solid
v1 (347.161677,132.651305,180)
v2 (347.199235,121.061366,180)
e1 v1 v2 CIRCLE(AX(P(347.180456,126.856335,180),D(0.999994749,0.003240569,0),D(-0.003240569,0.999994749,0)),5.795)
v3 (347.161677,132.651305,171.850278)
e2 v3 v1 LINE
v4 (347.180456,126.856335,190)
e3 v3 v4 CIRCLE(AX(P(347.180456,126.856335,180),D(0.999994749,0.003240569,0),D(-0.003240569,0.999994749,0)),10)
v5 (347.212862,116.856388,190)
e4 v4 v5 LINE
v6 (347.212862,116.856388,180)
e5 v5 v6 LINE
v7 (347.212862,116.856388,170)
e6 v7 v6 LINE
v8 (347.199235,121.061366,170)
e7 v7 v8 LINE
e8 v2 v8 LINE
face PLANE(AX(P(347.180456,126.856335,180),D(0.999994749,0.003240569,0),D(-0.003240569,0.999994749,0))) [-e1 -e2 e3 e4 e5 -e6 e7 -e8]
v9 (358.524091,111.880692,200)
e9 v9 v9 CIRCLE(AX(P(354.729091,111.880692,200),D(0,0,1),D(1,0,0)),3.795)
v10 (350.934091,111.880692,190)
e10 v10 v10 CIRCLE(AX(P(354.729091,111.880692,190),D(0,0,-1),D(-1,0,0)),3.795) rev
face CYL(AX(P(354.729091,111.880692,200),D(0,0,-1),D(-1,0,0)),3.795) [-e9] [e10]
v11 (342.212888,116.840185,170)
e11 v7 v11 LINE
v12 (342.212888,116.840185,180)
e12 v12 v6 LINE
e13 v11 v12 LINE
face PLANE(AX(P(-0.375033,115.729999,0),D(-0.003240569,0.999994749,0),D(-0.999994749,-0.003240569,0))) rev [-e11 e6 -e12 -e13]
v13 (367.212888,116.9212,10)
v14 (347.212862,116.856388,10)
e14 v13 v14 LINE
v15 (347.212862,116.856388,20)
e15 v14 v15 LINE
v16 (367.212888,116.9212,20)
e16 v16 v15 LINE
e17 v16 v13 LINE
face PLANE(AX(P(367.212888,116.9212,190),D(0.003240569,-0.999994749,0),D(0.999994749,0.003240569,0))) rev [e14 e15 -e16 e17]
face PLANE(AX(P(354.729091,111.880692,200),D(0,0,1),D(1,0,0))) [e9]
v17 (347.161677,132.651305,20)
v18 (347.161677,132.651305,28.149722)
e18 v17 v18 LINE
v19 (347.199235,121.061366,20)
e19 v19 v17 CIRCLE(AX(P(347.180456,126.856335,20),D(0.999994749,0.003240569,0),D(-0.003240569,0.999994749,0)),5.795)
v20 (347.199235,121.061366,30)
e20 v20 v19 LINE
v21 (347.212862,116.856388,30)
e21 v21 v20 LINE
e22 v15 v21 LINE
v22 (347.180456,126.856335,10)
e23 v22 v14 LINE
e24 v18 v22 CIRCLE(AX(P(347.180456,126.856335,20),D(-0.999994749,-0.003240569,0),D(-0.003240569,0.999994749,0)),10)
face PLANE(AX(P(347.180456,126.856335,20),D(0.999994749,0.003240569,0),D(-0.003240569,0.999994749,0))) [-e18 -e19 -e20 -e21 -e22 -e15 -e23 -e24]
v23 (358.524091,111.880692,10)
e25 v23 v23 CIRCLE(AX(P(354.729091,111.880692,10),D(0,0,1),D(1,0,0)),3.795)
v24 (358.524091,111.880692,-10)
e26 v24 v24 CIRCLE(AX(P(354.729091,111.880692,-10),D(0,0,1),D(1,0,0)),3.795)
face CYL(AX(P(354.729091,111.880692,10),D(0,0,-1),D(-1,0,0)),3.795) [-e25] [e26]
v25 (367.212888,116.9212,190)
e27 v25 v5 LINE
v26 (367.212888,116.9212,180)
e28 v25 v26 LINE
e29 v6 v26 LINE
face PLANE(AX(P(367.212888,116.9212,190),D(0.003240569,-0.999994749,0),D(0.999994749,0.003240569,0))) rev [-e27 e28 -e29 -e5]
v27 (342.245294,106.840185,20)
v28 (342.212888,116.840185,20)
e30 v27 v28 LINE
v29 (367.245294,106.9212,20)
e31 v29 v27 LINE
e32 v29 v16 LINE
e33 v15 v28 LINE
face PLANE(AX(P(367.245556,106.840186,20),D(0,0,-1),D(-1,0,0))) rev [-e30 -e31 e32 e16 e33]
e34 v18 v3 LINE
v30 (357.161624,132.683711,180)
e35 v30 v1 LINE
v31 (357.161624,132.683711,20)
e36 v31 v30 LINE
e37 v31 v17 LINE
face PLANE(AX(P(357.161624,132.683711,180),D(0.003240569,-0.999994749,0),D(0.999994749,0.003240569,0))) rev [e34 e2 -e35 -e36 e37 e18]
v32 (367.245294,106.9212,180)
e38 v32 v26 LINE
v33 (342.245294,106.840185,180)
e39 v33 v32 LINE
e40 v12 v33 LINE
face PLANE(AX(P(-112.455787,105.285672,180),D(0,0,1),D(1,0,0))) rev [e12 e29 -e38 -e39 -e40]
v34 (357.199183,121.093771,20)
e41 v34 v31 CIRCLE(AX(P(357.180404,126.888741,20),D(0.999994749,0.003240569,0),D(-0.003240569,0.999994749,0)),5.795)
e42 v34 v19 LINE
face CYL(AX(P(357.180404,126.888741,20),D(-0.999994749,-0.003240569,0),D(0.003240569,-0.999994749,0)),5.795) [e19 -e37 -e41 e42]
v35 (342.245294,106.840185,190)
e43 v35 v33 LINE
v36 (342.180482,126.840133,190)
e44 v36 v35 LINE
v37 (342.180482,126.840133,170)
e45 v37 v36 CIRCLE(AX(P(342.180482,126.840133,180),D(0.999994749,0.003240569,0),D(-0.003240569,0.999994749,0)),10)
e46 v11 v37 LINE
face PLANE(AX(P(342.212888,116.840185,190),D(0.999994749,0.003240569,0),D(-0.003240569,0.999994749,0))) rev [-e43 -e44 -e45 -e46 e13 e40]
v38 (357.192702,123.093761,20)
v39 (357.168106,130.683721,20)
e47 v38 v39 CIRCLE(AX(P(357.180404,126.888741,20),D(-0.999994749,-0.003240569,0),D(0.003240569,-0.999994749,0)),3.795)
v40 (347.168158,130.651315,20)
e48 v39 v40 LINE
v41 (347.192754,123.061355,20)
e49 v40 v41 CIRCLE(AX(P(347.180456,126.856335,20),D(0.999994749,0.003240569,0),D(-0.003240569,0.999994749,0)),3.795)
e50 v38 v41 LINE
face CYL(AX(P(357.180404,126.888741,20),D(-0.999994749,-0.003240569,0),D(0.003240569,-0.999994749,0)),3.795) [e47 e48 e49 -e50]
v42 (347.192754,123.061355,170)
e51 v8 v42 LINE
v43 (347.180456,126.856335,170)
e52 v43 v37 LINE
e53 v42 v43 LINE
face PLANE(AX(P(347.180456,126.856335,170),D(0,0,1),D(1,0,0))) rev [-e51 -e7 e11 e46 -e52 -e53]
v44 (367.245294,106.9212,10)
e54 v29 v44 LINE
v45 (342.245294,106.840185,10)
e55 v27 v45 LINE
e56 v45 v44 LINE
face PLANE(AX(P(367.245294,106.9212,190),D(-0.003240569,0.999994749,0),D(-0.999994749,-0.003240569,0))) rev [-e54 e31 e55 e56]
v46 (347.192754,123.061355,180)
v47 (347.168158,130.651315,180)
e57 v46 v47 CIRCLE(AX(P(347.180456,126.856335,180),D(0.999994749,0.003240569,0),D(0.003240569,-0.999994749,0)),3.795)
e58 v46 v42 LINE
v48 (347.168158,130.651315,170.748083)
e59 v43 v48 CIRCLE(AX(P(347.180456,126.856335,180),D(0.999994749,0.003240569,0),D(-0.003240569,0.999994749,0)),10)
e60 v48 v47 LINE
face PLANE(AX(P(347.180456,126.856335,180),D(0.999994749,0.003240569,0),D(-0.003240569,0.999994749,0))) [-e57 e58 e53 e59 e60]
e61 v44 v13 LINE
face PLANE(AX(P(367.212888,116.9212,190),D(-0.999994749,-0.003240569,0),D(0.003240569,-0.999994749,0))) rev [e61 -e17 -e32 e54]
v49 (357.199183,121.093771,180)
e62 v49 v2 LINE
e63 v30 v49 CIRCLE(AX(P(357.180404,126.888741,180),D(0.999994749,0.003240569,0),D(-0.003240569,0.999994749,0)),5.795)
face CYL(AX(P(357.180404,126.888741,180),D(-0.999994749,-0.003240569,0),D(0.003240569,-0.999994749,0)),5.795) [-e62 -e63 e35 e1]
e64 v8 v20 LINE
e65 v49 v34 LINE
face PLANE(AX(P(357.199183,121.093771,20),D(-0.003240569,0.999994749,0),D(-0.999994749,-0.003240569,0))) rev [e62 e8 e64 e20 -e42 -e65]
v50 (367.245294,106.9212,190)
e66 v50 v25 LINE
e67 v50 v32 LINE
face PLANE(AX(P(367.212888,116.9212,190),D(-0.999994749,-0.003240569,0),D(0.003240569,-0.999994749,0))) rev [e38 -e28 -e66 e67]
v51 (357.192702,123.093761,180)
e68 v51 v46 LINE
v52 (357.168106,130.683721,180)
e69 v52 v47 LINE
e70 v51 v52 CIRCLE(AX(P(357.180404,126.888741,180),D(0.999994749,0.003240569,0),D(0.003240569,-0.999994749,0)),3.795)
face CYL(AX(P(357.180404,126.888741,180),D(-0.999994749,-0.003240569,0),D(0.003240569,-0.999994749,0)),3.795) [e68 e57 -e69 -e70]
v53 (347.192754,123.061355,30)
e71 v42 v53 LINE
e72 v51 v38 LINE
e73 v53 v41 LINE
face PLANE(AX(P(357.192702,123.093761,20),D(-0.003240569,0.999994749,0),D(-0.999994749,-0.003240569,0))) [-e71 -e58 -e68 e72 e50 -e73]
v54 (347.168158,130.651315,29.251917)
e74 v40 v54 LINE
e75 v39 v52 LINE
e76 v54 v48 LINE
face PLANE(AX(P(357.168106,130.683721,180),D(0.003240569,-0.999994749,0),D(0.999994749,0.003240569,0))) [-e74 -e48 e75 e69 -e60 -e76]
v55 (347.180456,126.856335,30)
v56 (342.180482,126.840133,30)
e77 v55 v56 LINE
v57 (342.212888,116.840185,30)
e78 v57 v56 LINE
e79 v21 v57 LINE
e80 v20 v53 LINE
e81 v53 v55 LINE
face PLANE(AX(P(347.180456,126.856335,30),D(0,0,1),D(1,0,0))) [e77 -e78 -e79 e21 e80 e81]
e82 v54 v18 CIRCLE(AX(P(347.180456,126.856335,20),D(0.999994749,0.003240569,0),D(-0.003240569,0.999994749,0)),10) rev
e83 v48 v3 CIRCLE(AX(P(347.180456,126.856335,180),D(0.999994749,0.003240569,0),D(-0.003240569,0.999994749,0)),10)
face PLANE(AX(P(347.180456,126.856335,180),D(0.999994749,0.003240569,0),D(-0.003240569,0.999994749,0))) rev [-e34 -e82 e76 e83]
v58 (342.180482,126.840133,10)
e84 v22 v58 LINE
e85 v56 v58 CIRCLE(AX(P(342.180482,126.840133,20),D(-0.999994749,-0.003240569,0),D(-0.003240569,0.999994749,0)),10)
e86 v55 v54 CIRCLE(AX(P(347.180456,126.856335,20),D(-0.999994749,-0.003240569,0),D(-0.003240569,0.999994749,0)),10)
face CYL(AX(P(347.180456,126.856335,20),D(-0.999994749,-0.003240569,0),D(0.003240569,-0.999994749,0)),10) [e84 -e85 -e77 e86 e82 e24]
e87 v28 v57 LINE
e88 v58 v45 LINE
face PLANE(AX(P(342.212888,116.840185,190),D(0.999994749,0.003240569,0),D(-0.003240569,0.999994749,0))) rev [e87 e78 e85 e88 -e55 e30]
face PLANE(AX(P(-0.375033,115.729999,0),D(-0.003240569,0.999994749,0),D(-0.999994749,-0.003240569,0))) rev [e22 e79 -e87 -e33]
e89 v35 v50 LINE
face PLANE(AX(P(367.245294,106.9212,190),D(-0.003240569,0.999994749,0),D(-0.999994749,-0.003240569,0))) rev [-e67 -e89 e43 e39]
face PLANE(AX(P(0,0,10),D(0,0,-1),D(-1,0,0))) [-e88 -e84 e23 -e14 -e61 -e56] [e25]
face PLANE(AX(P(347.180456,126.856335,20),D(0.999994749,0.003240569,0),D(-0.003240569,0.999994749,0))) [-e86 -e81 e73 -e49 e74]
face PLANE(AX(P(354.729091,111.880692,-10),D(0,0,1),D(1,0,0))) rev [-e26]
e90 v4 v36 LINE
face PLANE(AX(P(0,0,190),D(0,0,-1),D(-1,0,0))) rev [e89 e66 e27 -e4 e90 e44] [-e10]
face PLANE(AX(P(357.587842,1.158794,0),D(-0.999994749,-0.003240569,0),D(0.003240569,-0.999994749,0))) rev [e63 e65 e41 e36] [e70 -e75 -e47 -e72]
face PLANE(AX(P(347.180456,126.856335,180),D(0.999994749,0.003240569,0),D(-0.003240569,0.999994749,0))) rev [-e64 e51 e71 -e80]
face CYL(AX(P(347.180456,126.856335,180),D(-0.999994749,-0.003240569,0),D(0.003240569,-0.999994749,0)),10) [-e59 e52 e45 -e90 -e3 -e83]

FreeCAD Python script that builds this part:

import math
import FreeCAD as App
import Part
import Sketcher
from FreeCAD import Vector

doc = App.newDocument("Part")
body = doc.addObject("PartDesign::Body", "Body")

# Sketch on XY plane
sketch1 = body.newObject("Sketcher::SketchObject", "Sketch")
sketch1.AttachmentSupport = (doc.getObject("XY_Plane"), [""])
sketch1.MapMode = "FlatFace"
sketch1.addGeometry(Part.Circle(Vector(354.7, 111.9, 0), Vector(0, 0, 1), 3.8), False)
sketch1.addConstraint([
    Sketcher.Constraint("Diameter", 0, 7.59),
    Sketcher.Constraint("DistanceX", -1, 1, 0, 3, 354.729091),
    Sketcher.Constraint("DistanceY", -1, 1, 0, 3, 111.880692),
])
pad1 = body.newObject("PartDesign::Pad", "Pad")
pad1.Profile = sketch1
pad1.Length = 20
pad1.Midplane = True

# Sketch on XY plane
sketch2 = body.newObject("Sketcher::SketchObject", "Sketch001")
sketch2.AttachmentSupport = (doc.getObject("XY_Plane"), [""])
sketch2.MapMode = "FlatFace"
sketch2.AttachmentOffset = App.Placement(Vector(0, 0, 10), App.Rotation())
sketch2.addGeometry([
    Part.LineSegment(Vector(367, 117, 0), Vector(342, 117, 0)),
    Part.LineSegment(Vector(342, 117, 0), Vector(342, 107, 0)),
    Part.LineSegment(Vector(342, 107, 0), Vector(367, 107, 0)),
    Part.LineSegment(Vector(367, 107, 0), Vector(367, 117, 0)),
], False)
sketch2.addConstraint([
    Sketcher.Constraint("Coincident", 0, 2, 1, 1),
    Sketcher.Constraint("Coincident", 1, 2, 2, 1),
    Sketcher.Constraint("Coincident", 2, 2, 3, 1),
    Sketcher.Constraint("Coincident", 3, 2, 0, 1),
    Sketcher.Constraint("Perpendicular", 0, 1),
    Sketcher.Constraint("Perpendicular", 1, 2),
    Sketcher.Constraint("Perpendicular", 2, 3),
    Sketcher.Constraint("DistanceY", 1, 2, 0, 2, 10.0),
    Sketcher.Constraint("DistanceX", 1, 2, 2, 2, 25.0),
    Sketcher.Constraint("DistanceY", -1, 1, 2, 2, 106.9212),
    Sketcher.Constraint("DistanceX", -1, 1, 0, 2, 342.212888),
    Sketcher.Constraint("DistanceY", -1, 1, 0, 2, 116.840185),
])
pad2 = body.newObject("PartDesign::Pad", "Pad001")
pad2.Profile = sketch2
pad2.Length = 180

# Sketch on XY plane
sketch3 = body.newObject("Sketcher::SketchObject", "Sketch002")
sketch3.AttachmentSupport = (doc.getObject("XY_Plane"), [""])
sketch3.MapMode = "FlatFace"
sketch3.AttachmentOffset = App.Placement(Vector(0, 0, 190), App.Rotation())
sketch3.addGeometry(Part.Circle(Vector(354.7, 111.9, 0), Vector(0, 0, 1), 3.8), False)
sketch3.addConstraint([
    Sketcher.Constraint("Diameter", 0, 7.59),
    Sketcher.Constraint("DistanceX", -1, 1, 0, 3, 354.729091),
    Sketcher.Constraint("DistanceY", -1, 1, 0, 3, 111.880692),
])
pad3 = body.newObject("PartDesign::Pad", "Pad002")
pad3.Profile = sketch3
pad3.Length = 10

# Sketch on an angled plane
sketch4 = body.newObject("Sketcher::SketchObject", "Sketch003")
sketch4.Placement = App.Placement(Vector(342.587921, 1.110186, 0), App.Rotation(Vector(0, 0, 1), Vector(-0.003240569, 0.999994749, 0), Vector(-0.999994749, -0.003240569, 0), "ZXY"))
sketch4.addGeometry([
    Part.LineSegment(Vector(10, 125.7, 0), Vector(10, 115.7, 0)),  # 0
    Part.LineSegment(Vector(10, 115.7, 0), Vector(30, 115.7, 0)),  # 1
    Part.LineSegment(Vector(30, 115.7, 0), Vector(30, 125.7, 0)),  # 2
    Part.ArcOfCircle(Part.Circle(Vector(20, 125.7, 0), Vector(0, 0, 1), 10), math.radians(0), math.radians(180)),  # 3
    Part.Circle(Vector(20, 125.7, 0), Vector(0, 0, 1), 3.8),  # 4
], False)
sketch4.addConstraint([
    Sketcher.Constraint("Coincident", 0, 2, 1, 1),
    Sketcher.Constraint("Coincident", 1, 2, 2, 1),
    Sketcher.Constraint("Tangent", 2, 2, 3, 1),
    Sketcher.Constraint("Tangent", 3, 2, 0, 1),
    Sketcher.Constraint("Vertical", 0),
    Sketcher.Constraint("Horizontal", 1),
    Sketcher.Constraint("Vertical", 2),
    Sketcher.Constraint("Coincident", 4, 3, 3, 3),
    Sketcher.Constraint("Radius", 3, 10.0),
    Sketcher.Constraint("Diameter", 4, 7.59),
    Sketcher.Constraint("DistanceY", 0, 2, 0, 1, 10.0),
    Sketcher.Constraint("DistanceX", -1, 1, 3, 3, 20.0),
    Sketcher.Constraint("DistanceY", -1, 1, 3, 3, 125.730607),
])
pad4 = body.newObject("PartDesign::Pad", "Pad003")
pad4.Profile = sketch4
pad4.Length = 5
pad4.Reversed = True

# Sketch on an angled plane
sketch5 = body.newObject("Sketcher::SketchObject", "Sketch004")
sketch5.Placement = App.Placement(Vector(342.587921, 1.110186, 0), App.Rotation(Vector(0, 0, 1), Vector(-0.003240569, 0.999994749, 0), Vector(-0.999994749, -0.003240569, 0), "ZXY"))
sketch5.addGeometry(Part.Circle(Vector(20, 125.7, 0), Vector(0, 0, 1), 3.8), False)
sketch5.addConstraint([
    Sketcher.Constraint("Diameter", 0, 7.59),
    Sketcher.Constraint("DistanceX", -1, 1, 0, 3, 20.0),
    Sketcher.Constraint("DistanceY", -1, 1, 0, 3, 125.730607),
])
pad5 = body.newObject("PartDesign::Pad", "Pad004")
pad5.Profile = sketch5
pad5.Length = 15
pad5.Reversed = True
doc.recompute()

datumplane = body.newObject("PartDesign::Plane", "DatumPlane")
datumplane.AttachmentSupport = (doc.getObject("XY_Plane"), [""])
datumplane.MapMode = "FlatFace"
datumplane.AttachmentOffset = App.Placement(Vector(0, 0, 100), App.Rotation())
mirrored = body.newObject("PartDesign::Mirrored", "Mirrored")
mirrored.Originals = [pad4, pad5]
mirrored.MirrorPlane = (datumplane, [""])
body.Tip = mirrored

# Sketch on an angled plane
sketch6 = body.newObject("Sketcher::SketchObject", "Sketch005")
sketch6.Placement = App.Placement(Vector(347.587895, 1.126389, 0), App.Rotation(Vector(0, 0, -1), Vector(-0.003240569, 0.999994749, 0), Vector(0.999994749, 0.003240569, 0), "ZXY"))
sketch6.addGeometry([
    Part.LineSegment(Vector(-20, 131.5, 0), Vector(-180, 131.5, 0)),  # 0
    Part.ArcOfCircle(Part.Circle(Vector(-180, 125.7, 0), Vector(0, 0, 1), 5.8), math.radians(90), math.radians(270)),  # 1
    Part.LineSegment(Vector(-180, 119.9, 0), Vector(-20, 119.9, 0)),  # 2
    Part.ArcOfCircle(Part.Circle(Vector(-20, 125.7, 0), Vector(0, 0, 1), 5.8), math.radians(-90), math.radians(90)),  # 3
    Part.LineSegment(Vector(-180, 129.5, 0), Vector(-20, 129.5, 0)),  # 4
    Part.ArcOfCircle(Part.Circle(Vector(-20, 125.7, 0), Vector(0, 0, 1), 3.8), math.radians(-90), math.radians(90)),  # 5
    Part.LineSegment(Vector(-20, 121.9, 0), Vector(-180, 121.9, 0)),  # 6
    Part.ArcOfCircle(Part.Circle(Vector(-180, 125.7, 0), Vector(0, 0, 1), 3.8), math.radians(90), math.radians(270)),  # 7
], False)
sketch6.addConstraint([
    Sketcher.Constraint("Tangent", 0, 2, 1, 1),
    Sketcher.Constraint("Tangent", 1, 2, 2, 1),
    Sketcher.Constraint("Tangent", 2, 2, 3, 1),
    Sketcher.Constraint("Tangent", 3, 2, 0, 1),
    Sketcher.Constraint("Tangent", 4, 2, 5, 2),
    Sketcher.Constraint("Tangent", 5, 1, 6, 1),
    Sketcher.Constraint("Tangent", 6, 2, 7, 2),
    Sketcher.Constraint("Tangent", 7, 1, 4, 1),
    Sketcher.Constraint("Horizontal", 0),
    Sketcher.Constraint("Horizontal", 2),
    Sketcher.Constraint("Horizontal", 4),
    Sketcher.Constraint("Horizontal", 6),
    Sketcher.Constraint("Coincident", 5, 3, 3, 3),
    Sketcher.Constraint("Vertical", 7, 3, 0, 2),
    Sketcher.Constraint("DistanceX", 0, 2, 0, 1, 160.0),
    Sketcher.Constraint("DistanceX", 1, 3, -1, 1, 180.0),
    Sketcher.Constraint("Radius", 1, 5.795),
    Sketcher.Constraint("Radius", 5, 3.795),
    Sketcher.Constraint("DistanceY", -1, 1, 1, 3, 125.730607),
])
pad6 = body.newObject("PartDesign::Pad", "Pad005")
pad6.Profile = sketch6
pad6.Length = 10

# Sketch on an angled plane
sketch7 = body.newObject("Sketcher::SketchObject", "Sketch006")
sketch7.Placement = App.Placement(Vector(-0.375033, 115.729999, 0), App.Rotation(Vector(0.999994749, 0.003240569, 0), Vector(0, 0, -0.999999999), Vector(-0.003240569, 0.999994749, 0), "ZXY"))
sketch7.addGeometry([
    Part.LineSegment(Vector(-112, -20, 0), Vector(-112, -180, 0)),
    Part.LineSegment(Vector(-112, -180, 0), Vector(368, -180, 0)),
    Part.LineSegment(Vector(368, -180, 0), Vector(368, -20, 0)),
    Part.LineSegment(Vector(368, -20, 0), Vector(-112, -20, 0)),
], False)
sketch7.addConstraint([
    Sketcher.Constraint("Coincident", 0, 2, 1, 1),
    Sketcher.Constraint("Coincident", 1, 2, 2, 1),
    Sketcher.Constraint("Coincident", 2, 2, 3, 1),
    Sketcher.Constraint("Coincident", 3, 2, 0, 1),
    Sketcher.Constraint("Vertical", 0),
    Sketcher.Constraint("Horizontal", 1),
    Sketcher.Constraint("Vertical", 2),
    Sketcher.Constraint("Horizontal", 3),
    Sketcher.Constraint("DistanceY", 0, 2, 0, 1, 160.0),
    Sketcher.Constraint("DistanceY", 0, 2, -1, 1, 180.0),
    Sketcher.Constraint("DistanceX", 1, 1, 1, 2, 479.703862),
    Sketcher.Constraint("DistanceX", 0, 2, -1, 1, 112.114011),
])
pocket1 = body.newObject("PartDesign::Pocket", "Pocket")
pocket1.Profile = sketch7
pocket1.Type = "ThroughAll"

doc.recompute()
